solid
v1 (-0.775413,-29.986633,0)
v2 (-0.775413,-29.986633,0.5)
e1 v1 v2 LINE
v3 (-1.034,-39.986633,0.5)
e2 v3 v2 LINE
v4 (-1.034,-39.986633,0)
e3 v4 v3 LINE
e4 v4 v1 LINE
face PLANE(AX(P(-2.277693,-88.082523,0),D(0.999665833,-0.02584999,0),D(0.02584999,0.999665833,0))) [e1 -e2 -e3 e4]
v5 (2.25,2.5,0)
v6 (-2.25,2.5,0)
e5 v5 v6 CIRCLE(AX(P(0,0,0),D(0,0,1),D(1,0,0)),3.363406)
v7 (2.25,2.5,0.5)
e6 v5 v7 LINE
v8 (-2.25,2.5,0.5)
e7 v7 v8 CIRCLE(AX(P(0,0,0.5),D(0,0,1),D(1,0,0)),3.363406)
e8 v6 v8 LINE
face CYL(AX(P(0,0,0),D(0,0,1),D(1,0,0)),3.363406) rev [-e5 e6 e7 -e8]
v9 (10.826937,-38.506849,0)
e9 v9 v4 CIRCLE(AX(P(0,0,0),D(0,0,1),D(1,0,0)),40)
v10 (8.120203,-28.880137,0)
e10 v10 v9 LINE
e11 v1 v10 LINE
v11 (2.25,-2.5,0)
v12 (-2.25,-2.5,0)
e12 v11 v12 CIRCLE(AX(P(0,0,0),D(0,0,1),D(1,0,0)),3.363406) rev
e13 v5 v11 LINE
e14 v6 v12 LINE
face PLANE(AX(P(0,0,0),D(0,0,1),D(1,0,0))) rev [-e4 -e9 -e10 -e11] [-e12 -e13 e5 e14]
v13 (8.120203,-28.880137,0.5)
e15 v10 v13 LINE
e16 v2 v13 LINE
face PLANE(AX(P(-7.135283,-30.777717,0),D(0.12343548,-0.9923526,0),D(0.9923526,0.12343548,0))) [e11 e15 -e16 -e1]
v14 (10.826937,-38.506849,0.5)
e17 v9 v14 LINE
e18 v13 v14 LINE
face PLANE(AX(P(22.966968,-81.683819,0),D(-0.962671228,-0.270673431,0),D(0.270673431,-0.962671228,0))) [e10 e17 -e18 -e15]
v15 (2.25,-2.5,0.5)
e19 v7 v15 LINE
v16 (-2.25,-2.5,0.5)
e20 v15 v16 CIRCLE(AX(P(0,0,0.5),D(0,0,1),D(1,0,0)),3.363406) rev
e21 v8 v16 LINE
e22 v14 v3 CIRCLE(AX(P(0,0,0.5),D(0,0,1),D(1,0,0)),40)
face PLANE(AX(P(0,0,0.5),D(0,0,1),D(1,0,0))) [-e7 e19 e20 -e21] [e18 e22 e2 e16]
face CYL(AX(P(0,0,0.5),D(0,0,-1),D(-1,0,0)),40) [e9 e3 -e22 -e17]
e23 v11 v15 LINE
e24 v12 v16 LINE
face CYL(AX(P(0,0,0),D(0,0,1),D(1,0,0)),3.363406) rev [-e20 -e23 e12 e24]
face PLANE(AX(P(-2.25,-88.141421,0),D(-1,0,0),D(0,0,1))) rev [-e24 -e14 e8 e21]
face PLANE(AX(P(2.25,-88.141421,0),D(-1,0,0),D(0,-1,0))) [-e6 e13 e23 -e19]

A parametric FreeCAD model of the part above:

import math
import FreeCAD as App
import Part
import Sketcher
Q = App.Units.Quantity

doc = App.newDocument("Part")
body = doc.addObject("PartDesign::Body", "Body")

# Sketch on XY plane
sketch1 = body.newObject("Sketcher::SketchObject", "Sketch")
sketch1.AttachmentSupport = (doc.getObject("XY_Plane"), [""])
sketch1.MapMode = "FlatFace"
sketch1.addGeometry(Part.Circle(App.Vector(0, 0, 0), App.Vector(0, 0, 1), 40), False)
sketch1.addConstraint(Sketcher.Constraint("Coincident", 0, 3, -1, 1))
sketch1.addConstraint(Sketcher.Constraint("Diameter", 0, Q("80 mm")))
pad1 = body.newObject("PartDesign::Pad", "Pad")
pad1.Profile = sketch1
pad1.Length = 0.5

# Sketch on XY plane
sketch2 = body.newObject("Sketcher::SketchObject", "Sketch001")
sketch2.AttachmentSupport = (doc.getObject("XY_Plane"), [""])
sketch2.MapMode = "FlatFace"
sketch2.AttachmentOffset = App.Placement(App.Vector(0, 0, 0.5), App.Rotation())
sketch2.addGeometry(Part.ArcOfCircle(Part.Circle(App.Vector(0, 0, 0), App.Vector(0, 0, 1), 3.363406), math.radians(48.012787), math.radians(131.987213)), False)
sketch2.addGeometry(Part.LineSegment(App.Vector(-2.25, 2.5, 0), App.Vector(-2.25, -2.5, 0)), False)
sketch2.addGeometry(Part.ArcOfCircle(Part.Circle(App.Vector(0, 0, 0), App.Vector(0, 0, 1), 3.363406), math.radians(-131.987213), math.radians(-48.012787)), False)
sketch2.addGeometry(Part.LineSegment(App.Vector(2.25, -2.5, 0), App.Vector(2.25, 2.5, 0)), False)
sketch2.addConstraint(Sketcher.Constraint("Coincident", 0, 2, 1, 1))
sketch2.addConstraint(Sketcher.Constraint("Coincident", 1, 2, 2, 1))
sketch2.addConstraint(Sketcher.Constraint("Coincident", 2, 2, 3, 1))
sketch2.addConstraint(Sketcher.Constraint("Coincident", 3, 2, 0, 1))
sketch2.addConstraint(Sketcher.Constraint("Vertical", 1))
sketch2.addConstraint(Sketcher.Constraint("Vertical", 3))
sketch2.addConstraint(Sketcher.Constraint("Coincident", 0, 3, -1, 1))
sketch2.addConstraint(Sketcher.Constraint("Coincident", 2, 3, -1, 1))
sketch2.addConstraint(Sketcher.Constraint("Equal", 0, 2))
sketch2.addConstraint(Sketcher.Constraint("Horizontal", 1, 2, 2, 2))
sketch2.addConstraint(Sketcher.Constraint("DistanceY", 1, 2, 1, 1, Q("5 mm")))
sketch2.addConstraint(Sketcher.Constraint("DistanceX", 1, 2, 2, 2, Q("4.5 mm")))
pocket1 = body.newObject("PartDesign::Pocket", "Pocket")
pocket1.Profile = sketch2
pocket1.Type = "ThroughAll"

# Sketch on XY plane
sketch3 = body.newObject("Sketcher::SketchObject", "Sketch002")
sketch3.AttachmentSupport = (doc.getObject("XY_Plane"), [""])
sketch3.MapMode = "FlatFace"
sketch3.AttachmentOffset = App.Placement(App.Vector(0, 0, 0.5), App.Rotation())
sketch3.addGeometry(Part.LineSegment(App.Vector(8.120203, -28.880137, 0), App.Vector(-0.775413, -29.986633, 0)), False)
sketch3.addGeometry(Part.LineSegment(App.Vector(-0.775413, -29.986633, 0), App.Vector(-1.034, -39.986633, 0)), False)
sketch3.addGeometry(Part.ArcOfCircle(Part.Circle(App.Vector(0, 0, 0), App.Vector(0, 0, 1), 40), math.radians(-91.48126), math.radians(-74.295656)), False)
sketch3.addGeometry(Part.LineSegment(App.Vector(10.826937, -38.506849, 0), App.Vector(8.120203, -28.880137, 0)), False)
sketch3.addConstraint(Sketcher.Constraint("Coincident", 0, 2, 1, 1))
sketch3.addConstraint(Sketcher.Constraint("Coincident", 1, 2, 2, 1))
sketch3.addConstraint(Sketcher.Constraint("Coincident", 2, 2, 3, 1))
sketch3.addConstraint(Sketcher.Constraint("Coincident", 3, 2, 0, 1))
sketch3.addConstraint(Sketcher.Constraint("Coincident", 2, 3, -1, 1))
sketch3.addConstraint(Sketcher.Constraint("Radius", 2, Q("40 mm")))
sketch3.addConstraint(Sketcher.Constraint("Distance", 3, Q("10 mm")))
sketch3.addConstraint(Sketcher.Constraint("DistanceY", 1, 2, 0, 2, Q("10 mm")))
sketch3.addConstraint(Sketcher.Constraint("DistanceX", 1, 2, -1, 1, Q("1.034 mm")))
sketch3.addConstraint(Sketcher.Constraint("Distance", 0, Q("8.964169 mm")))
sketch3.addConstraint(Sketcher.Constraint("DistanceY", 2, 2, -1, 1, Q("38.506849 mm")))
sketch3.addConstraint(Sketcher.Constraint("DistanceX", 0, 2, 2, 2, Q("11.602351 mm")))
pocket2 = body.newObject("PartDesign::Pocket", "Pocket001")
pocket2.Profile = sketch3
pocket2.Type = "ThroughAll"

doc.recompute()
